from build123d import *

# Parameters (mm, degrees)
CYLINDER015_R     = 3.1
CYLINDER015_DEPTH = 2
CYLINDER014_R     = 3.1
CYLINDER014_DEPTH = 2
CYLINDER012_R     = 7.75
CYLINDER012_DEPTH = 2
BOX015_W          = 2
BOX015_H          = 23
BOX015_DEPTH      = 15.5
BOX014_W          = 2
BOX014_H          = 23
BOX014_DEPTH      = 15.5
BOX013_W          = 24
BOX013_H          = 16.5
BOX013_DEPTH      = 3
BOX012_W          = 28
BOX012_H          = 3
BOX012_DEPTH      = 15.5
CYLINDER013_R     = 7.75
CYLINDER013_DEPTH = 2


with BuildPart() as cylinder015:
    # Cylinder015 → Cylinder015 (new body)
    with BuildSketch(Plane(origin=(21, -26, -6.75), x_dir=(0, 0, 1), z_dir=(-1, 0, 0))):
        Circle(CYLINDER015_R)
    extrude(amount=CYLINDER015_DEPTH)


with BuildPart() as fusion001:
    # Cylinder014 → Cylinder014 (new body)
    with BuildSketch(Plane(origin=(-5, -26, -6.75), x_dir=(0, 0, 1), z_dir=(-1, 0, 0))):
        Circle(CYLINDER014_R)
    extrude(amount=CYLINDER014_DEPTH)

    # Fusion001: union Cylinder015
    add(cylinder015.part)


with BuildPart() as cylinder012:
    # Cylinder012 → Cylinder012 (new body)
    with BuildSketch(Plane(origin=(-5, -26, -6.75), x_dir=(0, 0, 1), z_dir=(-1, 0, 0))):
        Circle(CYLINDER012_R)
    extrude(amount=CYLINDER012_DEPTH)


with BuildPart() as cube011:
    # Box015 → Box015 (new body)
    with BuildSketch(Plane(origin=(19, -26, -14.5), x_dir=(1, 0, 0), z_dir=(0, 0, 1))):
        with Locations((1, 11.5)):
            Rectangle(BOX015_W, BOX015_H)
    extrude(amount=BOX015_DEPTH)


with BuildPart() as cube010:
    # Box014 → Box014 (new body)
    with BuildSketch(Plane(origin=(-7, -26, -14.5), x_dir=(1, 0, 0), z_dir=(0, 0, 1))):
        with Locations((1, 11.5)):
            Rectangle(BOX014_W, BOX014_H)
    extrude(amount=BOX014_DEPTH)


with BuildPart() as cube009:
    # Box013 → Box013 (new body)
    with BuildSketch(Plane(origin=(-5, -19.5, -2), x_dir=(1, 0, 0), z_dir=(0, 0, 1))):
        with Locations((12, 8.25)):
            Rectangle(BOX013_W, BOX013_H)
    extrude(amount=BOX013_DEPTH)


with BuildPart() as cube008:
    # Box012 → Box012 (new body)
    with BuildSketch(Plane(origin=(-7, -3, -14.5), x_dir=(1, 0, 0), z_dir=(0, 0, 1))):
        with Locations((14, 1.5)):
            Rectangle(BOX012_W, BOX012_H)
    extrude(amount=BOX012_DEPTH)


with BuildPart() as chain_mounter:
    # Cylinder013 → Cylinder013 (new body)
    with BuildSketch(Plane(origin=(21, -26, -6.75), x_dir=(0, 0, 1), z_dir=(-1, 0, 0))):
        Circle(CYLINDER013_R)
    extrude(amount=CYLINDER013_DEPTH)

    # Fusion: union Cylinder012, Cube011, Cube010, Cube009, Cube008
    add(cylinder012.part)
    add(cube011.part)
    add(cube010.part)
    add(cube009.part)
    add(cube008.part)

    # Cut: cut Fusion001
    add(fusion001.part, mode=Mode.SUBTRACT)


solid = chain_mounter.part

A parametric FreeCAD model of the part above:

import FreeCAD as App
import Part
import Sketcher

V = App.Vector


def add_polygon(sketch, points):
    """Adds a closed chain of lines whose ends are joined by coincident constraints."""
    first, n = sketch.GeometryCount, len(points)
    for a, b in zip(points, points[1:] + points[:1]):
        sketch.addGeometry(Part.LineSegment(App.Vector(*a, 0), App.Vector(*b, 0)), False)
    for i in range(n):
        sketch.addConstraint(Sketcher.Constraint("Coincident", first + i, 2, first + (i + 1) % n, 1))

doc = App.newDocument("Part")
params = doc.addObject("Spreadsheet::Sheet", "Params")
for row, (alias, value) in enumerate([
    ("sketch1_diameter", "6.2 mm"),
    ("pad1_length", "2 mm"),
    ("sketch2_diameter", "6.2 mm"),
    ("pad2_length", "2 mm"),
    ("sketch3_diameter", "15.5 mm"),
    ("pad3_length", "2 mm"),
    ("sketch4_width", "2 mm"),
    ("sketch4_height", "23 mm"),
    ("pad4_length", "15.5 mm"),
    ("sketch5_width", "2 mm"),
    ("sketch5_height", "23 mm"),
    ("pad5_length", "15.5 mm"),
    ("sketch6_width", "24 mm"),
    ("sketch6_height", "16.5 mm"),
    ("pad6_length", "3 mm"),
    ("sketch7_width", "28 mm"),
    ("sketch7_height", "3 mm"),
    ("pad7_length", "15.5 mm"),
    ("sketch8_diameter", "15.5 mm"),
    ("pad8_length", "2 mm"),
], start=1):
    params.set(f"A{row}", alias)
    params.set(f"B{row}", "=" + value)
    params.setAlias(f"B{row}", alias)

body = doc.addObject("PartDesign::Body", "Body")

# Sketch on YZ plane
sketch1 = doc.addObject("Sketcher::SketchObject", "Sketch")
body.addObject(sketch1)
sketch1.AttachmentSupport = (doc.YZ_Plane, [""])
sketch1.MapMode = "FlatFace"
sketch1.AttachmentOffset = App.Placement(V(0, 0, 21), App.Rotation())
sketch1.addGeometry(Part.Circle(V(-26, -6.8, 0), V(0, 0, 1), 3.1), False)
sketch1.addConstraint([
    Sketcher.Constraint("Diameter", 0, 6.2),
    Sketcher.Constraint("DistanceX", 0, 3, -1, 1, 26.0),
    Sketcher.Constraint("DistanceY", 0, 3, -1, 1, 6.75),
])
sketch1.setExpression("Constraints[0]", "Params.sketch1_diameter")
pad1 = doc.addObject("PartDesign::Pad", "Pad")
body.addObject(pad1)
pad1.Profile = sketch1
pad1.setExpression("Length", "Params.pad1_length")
pad1.Reversed = True
body2 = doc.addObject("PartDesign::Body", "Body001")
body2.AllowCompound = True

# Sketch on YZ plane
sketch2 = doc.addObject("Sketcher::SketchObject", "Sketch001")
body2.addObject(sketch2)
sketch2.AttachmentSupport = (doc.getObject("YZ_Plane001"), [""])
sketch2.MapMode = "FlatFace"
sketch2.AttachmentOffset = App.Placement(V(0, 0, -5), App.Rotation())
sketch2.addGeometry(Part.Circle(V(-26, -6.8, 0), V(0, 0, 1), 3.1), False)
sketch2.addConstraint([
    Sketcher.Constraint("Diameter", 0, 6.2),
    Sketcher.Constraint("DistanceX", 0, 3, -1, 1, 26.0),
    Sketcher.Constraint("DistanceY", 0, 3, -1, 1, 6.75),
])
sketch2.setExpression("Constraints[0]", "Params.sketch2_diameter")
pad2 = doc.addObject("PartDesign::Pad", "Pad001")
body2.addObject(pad2)
pad2.Profile = sketch2
pad2.setExpression("Length", "Params.pad2_length")
pad2.Reversed = True
doc.recompute()

boolean = doc.addObject("PartDesign::Boolean", "Boolean")
body2.addObject(boolean)
boolean.Type = "Fuse"
boolean.addObjects([body])
body3 = doc.addObject("PartDesign::Body", "Body002")

# Sketch on YZ plane
sketch3 = doc.addObject("Sketcher::SketchObject", "Sketch002")
body3.addObject(sketch3)
sketch3.AttachmentSupport = (doc.getObject("YZ_Plane002"), [""])
sketch3.MapMode = "FlatFace"
sketch3.AttachmentOffset = App.Placement(V(0, 0, -5), App.Rotation())
sketch3.addGeometry(Part.Circle(V(-26, -7, 0), V(0, 0, 1), 8), False)
sketch3.addConstraint([
    Sketcher.Constraint("Diameter", 0, 15.5),
    Sketcher.Constraint("DistanceX", 0, 3, -1, 1, 26.0),
    Sketcher.Constraint("DistanceY", 0, 3, -1, 1, 6.75),
])
sketch3.setExpression("Constraints[0]", "Params.sketch3_diameter")
pad3 = doc.addObject("PartDesign::Pad", "Pad002")
body3.addObject(pad3)
pad3.Profile = sketch3
pad3.setExpression("Length", "Params.pad3_length")
pad3.Reversed = True
body4 = doc.addObject("PartDesign::Body", "Body003")

# Sketch on XY plane
sketch4 = doc.addObject("Sketcher::SketchObject", "Sketch003")
body4.addObject(sketch4)
sketch4.AttachmentSupport = (doc.getObject("XY_Plane003"), [""])
sketch4.MapMode = "FlatFace"
sketch4.AttachmentOffset = App.Placement(V(0, 0, -14.5), App.Rotation())
add_polygon(sketch4, [(19, -3), (19, -26), (21, -26), (21, -3)])  # lines 0-3
sketch4.addConstraint([
    Sketcher.Constraint("Vertical", 0),
    Sketcher.Constraint("Horizontal", 1),
    Sketcher.Constraint("Vertical", 2),
    Sketcher.Constraint("Horizontal", 3),
    Sketcher.Constraint("DistanceX", 1, 1, 1, 2, 2.0),
    Sketcher.Constraint("DistanceY", 0, 2, 0, 1, 23.0),
    Sketcher.Constraint("DistanceX", -1, 1, 0, 2, 19.0),
    Sketcher.Constraint("DistanceY", 0, 2, -1, 1, 26.0),
])
sketch4.setExpression("Constraints[8]", "Params.sketch4_width")
sketch4.setExpression("Constraints[9]", "Params.sketch4_height")
pad4 = doc.addObject("PartDesign::Pad", "Pad003")
body4.addObject(pad4)
pad4.Profile = sketch4
pad4.setExpression("Length", "Params.pad4_length")
body5 = doc.addObject("PartDesign::Body", "Body004")

# Sketch on XY plane
sketch5 = doc.addObject("Sketcher::SketchObject", "Sketch004")
body5.addObject(sketch5)
sketch5.AttachmentSupport = (doc.getObject("XY_Plane004"), [""])
sketch5.MapMode = "FlatFace"
sketch5.AttachmentOffset = App.Placement(V(0, 0, -14.5), App.Rotation())
add_polygon(sketch5, [(-7, -3), (-7, -26), (-5, -26), (-5, -3)])  # lines 0-3
sketch5.addConstraint([
    Sketcher.Constraint("Vertical", 0),
    Sketcher.Constraint("Horizontal", 1),
    Sketcher.Constraint("Vertical", 2),
    Sketcher.Constraint("Horizontal", 3),
    Sketcher.Constraint("DistanceX", 1, 1, 1, 2, 2.0),
    Sketcher.Constraint("DistanceY", 0, 2, 0, 1, 23.0),
    Sketcher.Constraint("DistanceX", 0, 2, -1, 1, 7.0),
    Sketcher.Constraint("DistanceY", 0, 2, -1, 1, 26.0),
])
sketch5.setExpression("Constraints[8]", "Params.sketch5_width")
sketch5.setExpression("Constraints[9]", "Params.sketch5_height")
pad5 = doc.addObject("PartDesign::Pad", "Pad004")
body5.addObject(pad5)
pad5.Profile = sketch5
pad5.setExpression("Length", "Params.pad5_length")
body6 = doc.addObject("PartDesign::Body", "Body005")

# Sketch on XY plane
sketch6 = doc.addObject("Sketcher::SketchObject", "Sketch005")
body6.addObject(sketch6)
sketch6.AttachmentSupport = (doc.getObject("XY_Plane005"), [""])
sketch6.MapMode = "FlatFace"
sketch6.AttachmentOffset = App.Placement(V(0, 0, -2), App.Rotation())
add_polygon(sketch6, [(-5, -3), (-5, -20), (19, -20), (19, -3)])  # lines 0-3
sketch6.addConstraint([
    Sketcher.Constraint("Vertical", 0),
    Sketcher.Constraint("Horizontal", 1),
    Sketcher.Constraint("Vertical", 2),
    Sketcher.Constraint("Horizontal", 3),
    Sketcher.Constraint("DistanceX", 1, 1, 1, 2, 24.0),
    Sketcher.Constraint("DistanceY", 0, 2, 0, 1, 16.5),
    Sketcher.Constraint("DistanceX", 0, 2, -1, 1, 5.0),
    Sketcher.Constraint("DistanceY", 2, 2, -1, 1, 3.0),
])
sketch6.setExpression("Constraints[8]", "Params.sketch6_width")
sketch6.setExpression("Constraints[9]", "Params.sketch6_height")
pad6 = doc.addObject("PartDesign::Pad", "Pad005")
body6.addObject(pad6)
pad6.Profile = sketch6
pad6.setExpression("Length", "Params.pad6_length")
body7 = doc.addObject("PartDesign::Body", "Body006")

# Sketch on XY plane
sketch7 = doc.addObject("Sketcher::SketchObject", "Sketch006")
body7.addObject(sketch7)
sketch7.AttachmentSupport = (doc.getObject("XY_Plane006"), [""])
sketch7.MapMode = "FlatFace"
sketch7.AttachmentOffset = App.Placement(V(0, 0, -14.5), App.Rotation())
add_polygon(sketch7, [(-7, 0), (-7, -3), (21, -3), (21, 0)])  # lines 0-3
sketch7.addConstraint([
    Sketcher.Constraint("Vertical", 0),
    Sketcher.Constraint("Horizontal", 1),
    Sketcher.Constraint("Vertical", 2),
    Sketcher.Constraint("Horizontal", 3),
    Sketcher.Constraint("PointOnObject", 2, 2, -1),
    Sketcher.Constraint("DistanceX", 1, 1, 1, 2, 28.0),
    Sketcher.Constraint("DistanceY", 0, 2, 0, 1, 3.0),
    Sketcher.Constraint("DistanceX", 0, 2, -1, 1, 7.0),
])
sketch7.setExpression("Constraints[9]", "Params.sketch7_width")
sketch7.setExpression("Constraints[10]", "Params.sketch7_height")
pad7 = doc.addObject("PartDesign::Pad", "Pad006")
body7.addObject(pad7)
pad7.Profile = sketch7
pad7.setExpression("Length", "Params.pad7_length")
body8 = doc.addObject("PartDesign::Body", "Body007")
body8.AllowCompound = True

# Sketch on YZ plane
sketch8 = doc.addObject("Sketcher::SketchObject", "Sketch007")
body8.addObject(sketch8)
sketch8.AttachmentSupport = (doc.getObject("YZ_Plane007"), [""])
sketch8.MapMode = "FlatFace"
sketch8.AttachmentOffset = App.Placement(V(0, 0, 21), App.Rotation())
sketch8.addGeometry(Part.Circle(V(-26, -7, 0), V(0, 0, 1), 8), False)
sketch8.addConstraint([
    Sketcher.Constraint("Diameter", 0, 15.5),
    Sketcher.Constraint("DistanceX", 0, 3, -1, 1, 26.0),
    Sketcher.Constraint("DistanceY", 0, 3, -1, 1, 6.75),
])
sketch8.setExpression("Constraints[0]", "Params.sketch8_diameter")
pad8 = doc.addObject("PartDesign::Pad", "Pad007")
body8.addObject(pad8)
pad8.Profile = sketch8
pad8.setExpression("Length", "Params.pad8_length")
pad8.Reversed = True
doc.recompute()

boolean2 = doc.addObject("PartDesign::Boolean", "Boolean001")
body8.addObject(boolean2)
boolean2.Type = "Fuse"
boolean2.addObjects([body3])
doc.recompute()

boolean3 = doc.addObject("PartDesign::Boolean", "Boolean002")
body8.addObject(boolean3)
boolean3.Type = "Fuse"
boolean3.addObjects([body4])
doc.recompute()

boolean4 = doc.addObject("PartDesign::Boolean", "Boolean003")
body8.addObject(boolean4)
boolean4.Type = "Fuse"
boolean4.addObjects([body5])
doc.recompute()

boolean5 = doc.addObject("PartDesign::Boolean", "Boolean004")
body8.addObject(boolean5)
boolean5.Type = "Fuse"
boolean5.addObjects([body6])
doc.recompute()

boolean6 = doc.addObject("PartDesign::Boolean", "Boolean005")
body8.addObject(boolean6)
boolean6.Type = "Fuse"
boolean6.addObjects([body7])
doc.recompute()

boolean7 = doc.addObject("PartDesign::Boolean", "Boolean006")
body8.addObject(boolean7)
boolean7.Type = "Cut"
boolean7.addObjects([body2])

doc.recompute()
